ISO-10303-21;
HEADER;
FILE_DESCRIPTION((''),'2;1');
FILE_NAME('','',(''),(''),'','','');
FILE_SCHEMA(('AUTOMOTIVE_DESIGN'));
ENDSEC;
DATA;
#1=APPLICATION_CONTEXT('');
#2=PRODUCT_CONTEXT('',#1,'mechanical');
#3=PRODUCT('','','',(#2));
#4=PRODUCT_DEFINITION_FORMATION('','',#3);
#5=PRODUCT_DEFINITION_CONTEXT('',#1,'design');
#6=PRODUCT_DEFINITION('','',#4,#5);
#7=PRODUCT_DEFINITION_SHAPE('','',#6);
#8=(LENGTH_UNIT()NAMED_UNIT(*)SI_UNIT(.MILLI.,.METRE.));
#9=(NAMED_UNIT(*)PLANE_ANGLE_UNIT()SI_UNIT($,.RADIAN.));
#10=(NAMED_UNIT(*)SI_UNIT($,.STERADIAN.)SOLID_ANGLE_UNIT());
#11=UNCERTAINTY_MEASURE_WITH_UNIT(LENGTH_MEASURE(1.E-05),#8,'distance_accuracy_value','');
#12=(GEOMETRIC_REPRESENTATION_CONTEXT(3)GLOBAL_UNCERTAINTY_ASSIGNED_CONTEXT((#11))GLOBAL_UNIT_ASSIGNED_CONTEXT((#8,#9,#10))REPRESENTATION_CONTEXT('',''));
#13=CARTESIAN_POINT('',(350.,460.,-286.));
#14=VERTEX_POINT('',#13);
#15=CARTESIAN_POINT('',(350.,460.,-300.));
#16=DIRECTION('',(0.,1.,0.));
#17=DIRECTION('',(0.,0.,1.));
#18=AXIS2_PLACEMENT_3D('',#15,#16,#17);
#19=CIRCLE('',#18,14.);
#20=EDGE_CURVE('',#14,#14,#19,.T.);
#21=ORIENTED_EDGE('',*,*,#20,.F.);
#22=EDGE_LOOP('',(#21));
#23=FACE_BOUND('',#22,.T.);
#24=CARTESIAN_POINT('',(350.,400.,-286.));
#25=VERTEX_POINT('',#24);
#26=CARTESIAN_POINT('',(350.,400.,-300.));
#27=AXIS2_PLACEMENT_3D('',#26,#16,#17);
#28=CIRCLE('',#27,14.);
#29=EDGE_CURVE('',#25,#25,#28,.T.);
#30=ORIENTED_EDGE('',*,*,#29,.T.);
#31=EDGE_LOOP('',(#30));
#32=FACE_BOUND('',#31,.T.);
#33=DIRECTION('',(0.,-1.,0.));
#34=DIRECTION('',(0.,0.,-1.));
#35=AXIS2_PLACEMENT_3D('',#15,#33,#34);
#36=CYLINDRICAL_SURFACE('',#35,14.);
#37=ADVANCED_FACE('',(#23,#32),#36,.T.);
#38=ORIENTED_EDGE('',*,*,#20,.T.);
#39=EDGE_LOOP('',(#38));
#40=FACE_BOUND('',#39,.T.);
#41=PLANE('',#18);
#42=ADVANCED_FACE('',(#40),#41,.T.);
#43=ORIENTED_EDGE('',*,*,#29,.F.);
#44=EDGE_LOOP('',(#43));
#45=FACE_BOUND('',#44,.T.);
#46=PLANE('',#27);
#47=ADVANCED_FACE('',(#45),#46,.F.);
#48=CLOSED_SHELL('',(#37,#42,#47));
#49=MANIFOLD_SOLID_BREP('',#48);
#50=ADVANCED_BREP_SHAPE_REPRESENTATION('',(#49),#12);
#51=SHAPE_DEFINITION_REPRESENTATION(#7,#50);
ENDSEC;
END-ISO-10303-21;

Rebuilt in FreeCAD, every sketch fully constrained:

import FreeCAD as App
import Part
import Sketcher

doc = App.newDocument("Part")
params = doc.addObject("Spreadsheet::Sheet", "Params")
for row, (alias, value) in enumerate([
    ("sketch1_diameter", "28 mm"),
    ("pad1_length", "60 mm"),
], start=1):
    params.set(f"A{row}", alias)
    params.set(f"B{row}", "=" + value)
    params.setAlias(f"B{row}", alias)

body = doc.addObject("PartDesign::Body", "Body")

# Sketch on XZ plane
sketch1 = body.newObject("Sketcher::SketchObject", "Sketch")
sketch1.AttachmentSupport = (doc.getObject("XZ_Plane"), [""])
sketch1.MapMode = "FlatFace"
sketch1.AttachmentOffset = App.Placement(App.Vector(0, 0, -400), App.Rotation())
sketch1.addGeometry(Part.Circle(App.Vector(350, -300, 0), App.Vector(0, 0, 1), 14), False)
sketch1.addConstraint([
    Sketcher.Constraint("Diameter", 0, 28.0),
    Sketcher.Constraint("DistanceX", -1, 1, 0, 3, 350.0),
    Sketcher.Constraint("DistanceY", 0, 3, -1, 1, 300.0),
])
sketch1.setExpression("Constraints[0]", "Params.sketch1_diameter")
pad1 = body.newObject("PartDesign::Pad", "Pad")
pad1.Profile = sketch1
pad1.setExpression("Length", "Params.pad1_length")
pad1.Reversed = True

doc.recompute()
